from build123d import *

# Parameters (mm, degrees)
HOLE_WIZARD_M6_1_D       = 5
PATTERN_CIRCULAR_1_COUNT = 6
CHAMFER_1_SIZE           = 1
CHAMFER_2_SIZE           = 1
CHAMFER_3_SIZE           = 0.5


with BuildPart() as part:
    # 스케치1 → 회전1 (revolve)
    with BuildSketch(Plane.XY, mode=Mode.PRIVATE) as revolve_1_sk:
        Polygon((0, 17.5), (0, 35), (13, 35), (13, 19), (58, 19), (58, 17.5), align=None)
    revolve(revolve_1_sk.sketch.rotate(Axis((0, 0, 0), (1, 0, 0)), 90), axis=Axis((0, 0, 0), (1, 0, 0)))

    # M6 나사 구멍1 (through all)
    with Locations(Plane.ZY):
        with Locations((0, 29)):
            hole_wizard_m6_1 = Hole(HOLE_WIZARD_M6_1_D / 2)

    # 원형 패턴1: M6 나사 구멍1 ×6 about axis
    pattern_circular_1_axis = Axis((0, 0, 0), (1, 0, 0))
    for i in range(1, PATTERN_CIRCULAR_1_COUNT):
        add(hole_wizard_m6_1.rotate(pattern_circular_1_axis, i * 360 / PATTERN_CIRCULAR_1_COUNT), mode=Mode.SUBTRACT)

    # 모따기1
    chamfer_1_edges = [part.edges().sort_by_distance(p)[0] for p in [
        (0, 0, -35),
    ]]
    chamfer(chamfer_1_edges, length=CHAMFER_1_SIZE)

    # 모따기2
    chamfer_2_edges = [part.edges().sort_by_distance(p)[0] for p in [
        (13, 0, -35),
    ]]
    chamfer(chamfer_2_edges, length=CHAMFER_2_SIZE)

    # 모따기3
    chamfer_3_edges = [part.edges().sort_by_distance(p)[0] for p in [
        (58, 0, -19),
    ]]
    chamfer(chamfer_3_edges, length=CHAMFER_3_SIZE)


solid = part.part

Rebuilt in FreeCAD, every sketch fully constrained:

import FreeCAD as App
import Part
import Sketcher

V = App.Vector


def edges_at(feature, points):
    """Names of the edges that pass closest to the given points."""
    edges = feature.Shape.Edges
    near = lambda p: min(range(len(edges)), key=lambda i: edges[i].distToShape(Part.Vertex(*p))[0])
    return sorted({f"Edge{near(p) + 1}" for p in points})


def add_polygon(sketch, points):
    """Adds a closed chain of lines whose ends are joined by coincident constraints."""
    first, n = sketch.GeometryCount, len(points)
    for a, b in zip(points, points[1:] + points[:1]):
        sketch.addGeometry(Part.LineSegment(App.Vector(*a, 0), App.Vector(*b, 0)), False)
    for i in range(n):
        sketch.addConstraint(Sketcher.Constraint("Coincident", first + i, 2, first + (i + 1) % n, 1))

doc = App.newDocument("Part")
body = doc.addObject("PartDesign::Body", "Body")

# Sketch on XY plane
sketch1 = doc.addObject("Sketcher::SketchObject", "Sketch")
body.addObject(sketch1)
sketch1.AttachmentSupport = (doc.XY_Plane, [""])
sketch1.MapMode = "FlatFace"
add_polygon(sketch1, [(0, 35), (0, 17.5), (58, 17.5), (58, 19), (13, 19), (13, 35)])  # lines 0-5
sketch1.addConstraint([
    Sketcher.Constraint("Vertical", 0),
    Sketcher.Constraint("Horizontal", 1),
    Sketcher.Constraint("Vertical", 2),
    Sketcher.Constraint("Horizontal", 3),
    Sketcher.Constraint("Vertical", 4),
    Sketcher.Constraint("Horizontal", 5),
    Sketcher.Constraint("PointOnObject", 0, 2, -2),
    Sketcher.Constraint("DistanceX", 1, 1, 1, 2, 58.0),
    Sketcher.Constraint("DistanceX", 3, 2, 3, 1, 45.0),
    Sketcher.Constraint("DistanceY", 4, 1, 4, 2, 16.0),
    Sketcher.Constraint("DistanceY", 0, 2, 0, 1, 17.5),
    Sketcher.Constraint("DistanceY", -1, 1, 2, 2, 19.0),
])
revolution = doc.addObject("PartDesign::Revolution", "Revolution")
body.addObject(revolution)
revolution.Profile = sketch1
revolution.ReferenceAxis = (sketch1, ["H_Axis"])
revolution.Angle = 360

# Sketch on YZ plane
sketch2 = doc.addObject("Sketcher::SketchObject", "Sketch001")
body.addObject(sketch2)
sketch2.AttachmentSupport = (doc.YZ_Plane, [""])
sketch2.MapMode = "FlatFace"
sketch2.addGeometry(Part.Circle(V(29, 0, 0), V(0, 0, 1), 2.5), False)
sketch2.addConstraint([
    Sketcher.Constraint("PointOnObject", 0, 3, -1),
    Sketcher.Constraint("Diameter", 0, 5.0),
    Sketcher.Constraint("DistanceX", -1, 1, 0, 3, 29.0),
])
doc.recompute()
hole = doc.addObject("PartDesign::Hole", "Hole")
body.addObject(hole)
hole.Profile = sketch2
hole.ThreadType = "None"
hole.Diameter = 5
hole.DepthType = "ThroughAll"
hole.Reversed = True
doc.recompute()

polarpattern = doc.addObject("PartDesign::PolarPattern", "PolarPattern")
body.addObject(polarpattern)
polarpattern.Originals = [hole]
polarpattern.Axis = (doc.X_Axis, [""])
polarpattern.Angle = 360
polarpattern.Occurrences = 6
body.Tip = polarpattern
doc.recompute()

chamfer = doc.addObject("PartDesign::Chamfer", "Chamfer")
body.addObject(chamfer)
chamfer.Base = (polarpattern, edges_at(polarpattern, [(0, 0, -35)]))
chamfer.Size = 1
doc.recompute()

chamfer2 = doc.addObject("PartDesign::Chamfer", "Chamfer001")
body.addObject(chamfer2)
chamfer2.Base = (chamfer, edges_at(chamfer, [(13, 0, -35)]))
chamfer2.Size = 1
doc.recompute()

chamfer3 = doc.addObject("PartDesign::Chamfer", "Chamfer002")
body.addObject(chamfer3)
chamfer3.Base = (chamfer2, edges_at(chamfer2, [(58, 0, -19)]))
chamfer3.Size = 0.5

doc.recompute()
